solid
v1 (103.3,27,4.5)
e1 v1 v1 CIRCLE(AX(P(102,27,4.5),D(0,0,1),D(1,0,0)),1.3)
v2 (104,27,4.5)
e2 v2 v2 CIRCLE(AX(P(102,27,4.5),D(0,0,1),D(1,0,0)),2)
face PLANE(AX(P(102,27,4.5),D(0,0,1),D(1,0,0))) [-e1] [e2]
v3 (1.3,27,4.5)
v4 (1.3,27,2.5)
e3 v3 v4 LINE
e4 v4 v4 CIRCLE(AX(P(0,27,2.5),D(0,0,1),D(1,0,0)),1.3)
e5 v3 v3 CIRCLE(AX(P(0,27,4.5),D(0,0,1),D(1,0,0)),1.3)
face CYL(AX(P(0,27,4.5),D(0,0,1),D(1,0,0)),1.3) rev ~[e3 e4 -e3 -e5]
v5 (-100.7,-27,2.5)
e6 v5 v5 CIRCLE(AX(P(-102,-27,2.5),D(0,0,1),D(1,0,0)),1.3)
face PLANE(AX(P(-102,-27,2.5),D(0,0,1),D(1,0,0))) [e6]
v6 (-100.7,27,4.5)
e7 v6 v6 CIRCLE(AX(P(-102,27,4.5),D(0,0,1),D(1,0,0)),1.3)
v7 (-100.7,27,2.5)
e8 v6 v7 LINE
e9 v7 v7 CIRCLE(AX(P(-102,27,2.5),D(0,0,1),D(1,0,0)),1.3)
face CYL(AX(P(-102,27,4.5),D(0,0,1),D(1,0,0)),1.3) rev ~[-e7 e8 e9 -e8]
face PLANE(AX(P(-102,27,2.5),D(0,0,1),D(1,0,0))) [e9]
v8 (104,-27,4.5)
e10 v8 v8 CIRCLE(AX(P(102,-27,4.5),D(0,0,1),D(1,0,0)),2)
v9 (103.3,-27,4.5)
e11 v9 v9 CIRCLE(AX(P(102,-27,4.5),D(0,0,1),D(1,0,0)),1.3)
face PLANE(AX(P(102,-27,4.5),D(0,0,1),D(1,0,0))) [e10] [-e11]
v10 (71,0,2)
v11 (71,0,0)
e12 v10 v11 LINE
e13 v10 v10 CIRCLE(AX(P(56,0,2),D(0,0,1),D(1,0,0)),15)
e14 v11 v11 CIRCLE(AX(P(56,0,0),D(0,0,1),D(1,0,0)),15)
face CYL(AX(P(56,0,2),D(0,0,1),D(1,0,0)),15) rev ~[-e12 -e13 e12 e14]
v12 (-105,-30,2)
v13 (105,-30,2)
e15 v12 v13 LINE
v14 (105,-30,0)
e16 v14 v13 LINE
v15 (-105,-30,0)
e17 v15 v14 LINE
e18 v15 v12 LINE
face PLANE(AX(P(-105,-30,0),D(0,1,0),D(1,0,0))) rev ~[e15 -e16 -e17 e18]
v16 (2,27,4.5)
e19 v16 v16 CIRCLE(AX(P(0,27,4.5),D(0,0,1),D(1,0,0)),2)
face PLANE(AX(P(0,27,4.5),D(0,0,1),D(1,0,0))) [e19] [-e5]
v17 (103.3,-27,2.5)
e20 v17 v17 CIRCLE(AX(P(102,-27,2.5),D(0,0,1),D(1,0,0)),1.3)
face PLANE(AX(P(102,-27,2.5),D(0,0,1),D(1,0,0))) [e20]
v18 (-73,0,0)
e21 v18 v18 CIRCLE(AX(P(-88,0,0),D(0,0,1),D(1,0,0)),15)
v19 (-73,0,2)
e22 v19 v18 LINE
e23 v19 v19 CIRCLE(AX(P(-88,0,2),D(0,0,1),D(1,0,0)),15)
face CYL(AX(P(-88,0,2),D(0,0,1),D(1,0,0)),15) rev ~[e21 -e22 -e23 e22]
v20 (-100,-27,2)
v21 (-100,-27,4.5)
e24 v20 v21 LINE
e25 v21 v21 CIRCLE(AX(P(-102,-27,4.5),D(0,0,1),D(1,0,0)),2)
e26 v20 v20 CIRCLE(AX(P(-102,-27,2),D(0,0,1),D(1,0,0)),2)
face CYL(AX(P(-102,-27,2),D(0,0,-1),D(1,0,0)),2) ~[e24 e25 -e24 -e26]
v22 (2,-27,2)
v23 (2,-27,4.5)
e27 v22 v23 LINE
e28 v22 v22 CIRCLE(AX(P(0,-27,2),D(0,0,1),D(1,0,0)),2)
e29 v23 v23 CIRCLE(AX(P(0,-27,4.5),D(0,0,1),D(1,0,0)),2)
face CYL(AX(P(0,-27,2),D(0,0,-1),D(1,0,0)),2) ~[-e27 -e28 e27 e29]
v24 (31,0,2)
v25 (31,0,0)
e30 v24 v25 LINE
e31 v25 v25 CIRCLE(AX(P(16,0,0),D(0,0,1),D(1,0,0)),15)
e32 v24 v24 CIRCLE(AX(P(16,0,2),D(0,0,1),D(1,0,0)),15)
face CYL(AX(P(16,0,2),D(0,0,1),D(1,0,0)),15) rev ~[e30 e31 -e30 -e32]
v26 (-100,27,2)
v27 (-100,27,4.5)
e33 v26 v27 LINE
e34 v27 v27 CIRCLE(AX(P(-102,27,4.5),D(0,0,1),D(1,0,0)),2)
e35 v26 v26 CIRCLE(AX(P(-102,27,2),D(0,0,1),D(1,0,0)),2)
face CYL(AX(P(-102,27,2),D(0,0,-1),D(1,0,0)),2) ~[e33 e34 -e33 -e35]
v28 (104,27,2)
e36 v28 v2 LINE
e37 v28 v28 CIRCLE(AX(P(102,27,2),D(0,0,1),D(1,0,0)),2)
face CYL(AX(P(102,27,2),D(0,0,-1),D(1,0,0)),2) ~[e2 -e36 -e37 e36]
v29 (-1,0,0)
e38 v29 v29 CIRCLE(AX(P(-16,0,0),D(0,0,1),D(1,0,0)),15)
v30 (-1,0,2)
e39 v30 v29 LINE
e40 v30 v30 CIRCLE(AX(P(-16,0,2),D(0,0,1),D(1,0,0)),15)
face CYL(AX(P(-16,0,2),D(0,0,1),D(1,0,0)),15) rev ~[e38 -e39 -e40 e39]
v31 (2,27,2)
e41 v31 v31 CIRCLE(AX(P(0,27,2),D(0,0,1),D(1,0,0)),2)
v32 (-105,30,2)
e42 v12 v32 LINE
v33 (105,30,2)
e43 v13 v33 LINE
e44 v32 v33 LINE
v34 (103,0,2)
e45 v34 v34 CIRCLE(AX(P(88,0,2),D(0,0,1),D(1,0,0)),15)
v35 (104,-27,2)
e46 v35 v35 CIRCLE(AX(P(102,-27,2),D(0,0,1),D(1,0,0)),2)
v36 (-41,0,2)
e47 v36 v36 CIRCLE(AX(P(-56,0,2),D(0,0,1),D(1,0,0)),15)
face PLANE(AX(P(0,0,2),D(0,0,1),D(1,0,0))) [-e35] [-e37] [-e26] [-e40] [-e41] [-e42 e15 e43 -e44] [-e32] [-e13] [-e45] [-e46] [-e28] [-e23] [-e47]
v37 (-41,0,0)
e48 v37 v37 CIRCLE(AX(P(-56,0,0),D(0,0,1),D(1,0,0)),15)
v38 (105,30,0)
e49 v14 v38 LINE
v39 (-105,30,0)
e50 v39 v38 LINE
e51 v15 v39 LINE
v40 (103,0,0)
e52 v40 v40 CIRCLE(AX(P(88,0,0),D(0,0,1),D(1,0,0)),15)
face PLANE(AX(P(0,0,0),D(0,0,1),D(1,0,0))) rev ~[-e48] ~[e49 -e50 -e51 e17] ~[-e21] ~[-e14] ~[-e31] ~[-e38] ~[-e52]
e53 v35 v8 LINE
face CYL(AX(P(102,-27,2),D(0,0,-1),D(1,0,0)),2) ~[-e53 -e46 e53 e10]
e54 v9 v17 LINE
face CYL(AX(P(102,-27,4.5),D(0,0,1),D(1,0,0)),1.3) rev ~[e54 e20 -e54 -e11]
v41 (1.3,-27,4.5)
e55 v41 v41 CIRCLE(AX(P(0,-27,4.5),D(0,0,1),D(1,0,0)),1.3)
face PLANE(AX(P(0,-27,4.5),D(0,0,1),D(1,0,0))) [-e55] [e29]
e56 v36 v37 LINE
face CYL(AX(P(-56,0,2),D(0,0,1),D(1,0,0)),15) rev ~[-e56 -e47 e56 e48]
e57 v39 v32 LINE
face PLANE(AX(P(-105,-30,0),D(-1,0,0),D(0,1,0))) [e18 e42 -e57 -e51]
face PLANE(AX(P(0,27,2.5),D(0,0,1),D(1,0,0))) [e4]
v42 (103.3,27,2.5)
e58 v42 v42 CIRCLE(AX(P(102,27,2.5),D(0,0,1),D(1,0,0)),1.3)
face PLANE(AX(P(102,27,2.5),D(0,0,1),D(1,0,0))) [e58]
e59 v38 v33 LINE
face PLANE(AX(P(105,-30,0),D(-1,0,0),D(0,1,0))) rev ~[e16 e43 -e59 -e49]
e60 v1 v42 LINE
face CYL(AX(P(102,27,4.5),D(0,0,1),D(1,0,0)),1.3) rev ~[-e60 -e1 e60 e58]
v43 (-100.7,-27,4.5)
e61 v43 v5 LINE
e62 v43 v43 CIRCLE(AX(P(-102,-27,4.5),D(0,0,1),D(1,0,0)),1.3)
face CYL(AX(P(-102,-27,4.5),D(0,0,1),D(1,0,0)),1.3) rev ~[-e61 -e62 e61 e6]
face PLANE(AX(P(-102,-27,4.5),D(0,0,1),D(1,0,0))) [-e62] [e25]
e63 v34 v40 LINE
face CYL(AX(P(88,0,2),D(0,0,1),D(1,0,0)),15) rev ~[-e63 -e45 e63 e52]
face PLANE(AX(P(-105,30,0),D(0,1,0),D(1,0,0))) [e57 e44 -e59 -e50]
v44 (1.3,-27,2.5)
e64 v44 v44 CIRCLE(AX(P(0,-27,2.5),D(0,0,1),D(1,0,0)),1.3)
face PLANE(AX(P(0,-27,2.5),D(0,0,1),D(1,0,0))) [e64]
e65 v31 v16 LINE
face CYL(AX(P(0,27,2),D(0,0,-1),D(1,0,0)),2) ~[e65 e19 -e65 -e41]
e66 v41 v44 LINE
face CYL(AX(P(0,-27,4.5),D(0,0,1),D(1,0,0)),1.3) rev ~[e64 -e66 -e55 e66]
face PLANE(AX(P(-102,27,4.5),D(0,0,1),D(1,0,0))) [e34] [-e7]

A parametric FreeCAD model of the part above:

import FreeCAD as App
import Part
import Sketcher
from FreeCAD import Vector
Q = App.Units.Quantity


def add_polygon(sketch, points):
    """Adds a closed chain of lines whose ends are joined by coincident constraints."""
    first, n = sketch.GeometryCount, len(points)
    for a, b in zip(points, points[1:] + points[:1]):
        sketch.addGeometry(Part.LineSegment(App.Vector(*a, 0), App.Vector(*b, 0)), False)
    for i in range(n):
        sketch.addConstraint(Sketcher.Constraint("Coincident", first + i, 2, first + (i + 1) % n, 1))

doc = App.newDocument("Part")
params = doc.addObject("Spreadsheet::Sheet", "Params")
for row, (alias, value) in enumerate([
    ("sketch1_width", "210 mm"),
    ("sketch1_height", "60 mm"),
    ("pad1_length", "2 mm"),
    ("sketch2_diameter", "30 mm"),
    ("pocket1_length", "2 mm"),
    ("sketch3_diameter", "4 mm"),
    ("pad2_length", "2.5 mm"),
    ("sketch4_diameter", "2.6 mm"),
    ("pocket2_length", "2 mm"),
    ("sketch5_diameter", "2.6 mm"),
    ("pocket3_length", "2 mm"),
    ("sketch6_diameter", "2.6 mm"),
    ("pocket4_length", "2 mm"),
    ("sketch7_diameter", "2.6 mm"),
    ("pocket5_length", "2 mm"),
    ("sketch8_diameter", "2.6 mm"),
    ("pocket6_length", "2 mm"),
    ("sketch9_diameter", "2.6 mm"),
    ("pocket7_length", "2 mm"),
], start=1):
    params.set(f"A{row}", alias)
    params.set(f"B{row}", "=" + value)
    params.setAlias(f"B{row}", alias)

body = doc.addObject("PartDesign::Body", "Body")

# Sketch on XY plane
sketch1 = body.newObject("Sketcher::SketchObject", "Sketch")
sketch1.AttachmentSupport = (doc.getObject("XY_Plane"), [""])
sketch1.MapMode = "FlatFace"
add_polygon(sketch1, [(-105, 30), (-105, -30), (105, -30), (105, 30)])  # lines 0-3
sketch1.addConstraint(Sketcher.Constraint("Vertical", 0))
sketch1.addConstraint(Sketcher.Constraint("Horizontal", 1))
sketch1.addConstraint(Sketcher.Constraint("Vertical", 2))
sketch1.addConstraint(Sketcher.Constraint("Horizontal", 3))
sketch1.addConstraint(Sketcher.Constraint("Symmetric", 0, 2, 2, 2, -1, 1))
sketch1.addConstraint(Sketcher.Constraint("DistanceX", 1, 1, 1, 2, Q("210 mm")))
sketch1.addConstraint(Sketcher.Constraint("DistanceY", 0, 2, 0, 1, Q("60 mm")))
sketch1.setExpression("Constraints[9]", "Params.sketch1_width")
sketch1.setExpression("Constraints[10]", "Params.sketch1_height")
pad1 = body.newObject("PartDesign::Pad", "Pad")
pad1.Profile = sketch1
pad1.setExpression("Length", "Params.pad1_length")

# Sketch on XY plane
sketch2 = body.newObject("Sketcher::SketchObject", "Sketch001")
sketch2.AttachmentSupport = (doc.getObject("XY_Plane"), [""])
sketch2.MapMode = "FlatFace"
sketch2.AttachmentOffset = App.Placement(Vector(0, 0, 2), App.Rotation())
sketch2.addGeometry(Part.Circle(Vector(-88, 0, 0), Vector(0, 0, 1), 15), False)
sketch2.addGeometry(Part.Circle(Vector(-56, 0, 0), Vector(0, 0, 1), 15), False)
sketch2.addGeometry(Part.Circle(Vector(-16, 0, 0), Vector(0, 0, 1), 15), False)
sketch2.addGeometry(Part.Circle(Vector(16, 0, 0), Vector(0, 0, 1), 15), False)
sketch2.addGeometry(Part.Circle(Vector(56, 0, 0), Vector(0, 0, 1), 15), False)
sketch2.addGeometry(Part.Circle(Vector(88, 0, 0), Vector(0, 0, 1), 15), False)
sketch2.addConstraint(Sketcher.Constraint("Equal", 0, 1))
sketch2.addConstraint(Sketcher.Constraint("Equal", 1, 2))
sketch2.addConstraint(Sketcher.Constraint("Equal", 2, 3))
sketch2.addConstraint(Sketcher.Constraint("Equal", 3, 4))
sketch2.addConstraint(Sketcher.Constraint("Equal", 4, 5))
sketch2.addConstraint(Sketcher.Constraint("Symmetric", 2, 3, 3, 3, -1, 1))
sketch2.addConstraint(Sketcher.Constraint("Symmetric", 1, 3, 4, 3, -1, 1))
sketch2.addConstraint(Sketcher.Constraint("Symmetric", 0, 3, 5, 3, -1, 1))
sketch2.addConstraint(Sketcher.Constraint("PointOnObject", 0, 3, -1))
sketch2.addConstraint(Sketcher.Constraint("PointOnObject", 1, 3, -1))
sketch2.addConstraint(Sketcher.Constraint("PointOnObject", 2, 3, -1))
sketch2.addConstraint(Sketcher.Constraint("Diameter", 0, Q("30 mm")))
sketch2.addConstraint(Sketcher.Constraint("DistanceX", 0, 3, -1, 1, Q("88 mm")))
sketch2.addConstraint(Sketcher.Constraint("DistanceX", 1, 3, -1, 1, Q("56 mm")))
sketch2.addConstraint(Sketcher.Constraint("DistanceX", 2, 3, -1, 1, Q("16 mm")))
sketch2.setExpression("Constraints[11]", "Params.sketch2_diameter")
pocket1 = body.newObject("PartDesign::Pocket", "Pocket")
pocket1.Profile = sketch2
pocket1.setExpression("Length", "Params.pocket1_length")

# Sketch on XY plane
sketch3 = body.newObject("Sketcher::SketchObject", "Sketch002")
sketch3.AttachmentSupport = (doc.getObject("XY_Plane"), [""])
sketch3.MapMode = "FlatFace"
sketch3.AttachmentOffset = App.Placement(Vector(0, 0, 2), App.Rotation())
sketch3.addGeometry(Part.Circle(Vector(-102, -27, 0), Vector(0, 0, 1), 2), False)
sketch3.addGeometry(Part.Circle(Vector(-102, 27, 0), Vector(0, 0, 1), 2), False)
sketch3.addGeometry(Part.Circle(Vector(102, -27, 0), Vector(0, 0, 1), 2), False)
sketch3.addGeometry(Part.Circle(Vector(102, 27, 0), Vector(0, 0, 1), 2), False)
sketch3.addGeometry(Part.Circle(Vector(0, 27, 0), Vector(0, 0, 1), 2), False)
sketch3.addGeometry(Part.Circle(Vector(0, -27, 0), Vector(0, 0, 1), 2), False)
sketch3.addConstraint(Sketcher.Constraint("Equal", 0, 1))
sketch3.addConstraint(Sketcher.Constraint("Equal", 1, 2))
sketch3.addConstraint(Sketcher.Constraint("Equal", 2, 3))
sketch3.addConstraint(Sketcher.Constraint("Equal", 3, 4))
sketch3.addConstraint(Sketcher.Constraint("Equal", 4, 5))
sketch3.addConstraint(Sketcher.Constraint("Symmetric", 1, 3, 2, 3, -1, 1))
sketch3.addConstraint(Sketcher.Constraint("Symmetric", 0, 3, 3, 3, -1, 1))
sketch3.addConstraint(Sketcher.Constraint("Symmetric", 4, 3, 5, 3, -1, 1))
sketch3.addConstraint(Sketcher.Constraint("Symmetric", 0, 3, 2, 3, -2))
sketch3.addConstraint(Sketcher.Constraint("PointOnObject", 4, 3, -2))
sketch3.addConstraint(Sketcher.Constraint("Horizontal", 3, 3, 4, 3))
sketch3.addConstraint(Sketcher.Constraint("Diameter", 0, Q("4 mm")))
sketch3.addConstraint(Sketcher.Constraint("DistanceX", 0, 3, -1, 1, Q("102 mm")))
sketch3.addConstraint(Sketcher.Constraint("DistanceY", 0, 3, -1, 1, Q("27 mm")))
sketch3.setExpression("Constraints[11]", "Params.sketch3_diameter")
pad2 = body.newObject("PartDesign::Pad", "Pad001")
pad2.Profile = sketch3
pad2.setExpression("Length", "Params.pad2_length")

# Sketch on XY plane
sketch4 = body.newObject("Sketcher::SketchObject", "Sketch003")
sketch4.AttachmentSupport = (doc.getObject("XY_Plane"), [""])
sketch4.MapMode = "FlatFace"
sketch4.AttachmentOffset = App.Placement(Vector(0, 0, 4.5), App.Rotation())
sketch4.addGeometry(Part.Circle(Vector(0, -27, 0), Vector(0, 0, 1), 1.3), False)
sketch4.addConstraint(Sketcher.Constraint("PointOnObject", 0, 3, -2))
sketch4.addConstraint(Sketcher.Constraint("Diameter", 0, Q("2.6 mm")))
sketch4.addConstraint(Sketcher.Constraint("DistanceY", 0, 3, -1, 1, Q("27 mm")))
sketch4.setExpression("Constraints[1]", "Params.sketch4_diameter")
pocket2 = body.newObject("PartDesign::Pocket", "Pocket001")
pocket2.Profile = sketch4
pocket2.setExpression("Length", "Params.pocket2_length")

# Sketch on XY plane
sketch5 = body.newObject("Sketcher::SketchObject", "Sketch004")
sketch5.AttachmentSupport = (doc.getObject("XY_Plane"), [""])
sketch5.MapMode = "FlatFace"
sketch5.AttachmentOffset = App.Placement(Vector(0, 0, 4.5), App.Rotation())
sketch5.addGeometry(Part.Circle(Vector(-102, -27, 0), Vector(0, 0, 1), 1.3), False)
sketch5.addConstraint(Sketcher.Constraint("Diameter", 0, Q("2.6 mm")))
sketch5.addConstraint(Sketcher.Constraint("DistanceX", 0, 3, -1, 1, Q("102 mm")))
sketch5.addConstraint(Sketcher.Constraint("DistanceY", 0, 3, -1, 1, Q("27 mm")))
sketch5.setExpression("Constraints[0]", "Params.sketch5_diameter")
pocket3 = body.newObject("PartDesign::Pocket", "Pocket002")
pocket3.Profile = sketch5
pocket3.setExpression("Length", "Params.pocket3_length")

# Sketch on XY plane
sketch6 = body.newObject("Sketcher::SketchObject", "Sketch005")
sketch6.AttachmentSupport = (doc.getObject("XY_Plane"), [""])
sketch6.MapMode = "FlatFace"
sketch6.AttachmentOffset = App.Placement(Vector(0, 0, 4.5), App.Rotation())
sketch6.addGeometry(Part.Circle(Vector(-102, 27, 0), Vector(0, 0, 1), 1.3), False)
sketch6.addConstraint(Sketcher.Constraint("Diameter", 0, Q("2.6 mm")))
sketch6.addConstraint(Sketcher.Constraint("DistanceX", 0, 3, -1, 1, Q("102 mm")))
sketch6.addConstraint(Sketcher.Constraint("DistanceY", -1, 1, 0, 3, Q("27 mm")))
sketch6.setExpression("Constraints[0]", "Params.sketch6_diameter")
pocket4 = body.newObject("PartDesign::Pocket", "Pocket003")
pocket4.Profile = sketch6
pocket4.setExpression("Length", "Params.pocket4_length")

# Sketch on XY plane
sketch7 = body.newObject("Sketcher::SketchObject", "Sketch006")
sketch7.AttachmentSupport = (doc.getObject("XY_Plane"), [""])
sketch7.MapMode = "FlatFace"
sketch7.AttachmentOffset = App.Placement(Vector(0, 0, 4.5), App.Rotation())
sketch7.addGeometry(Part.Circle(Vector(0, 27, 0), Vector(0, 0, 1), 1.3), False)
sketch7.addConstraint(Sketcher.Constraint("PointOnObject", 0, 3, -2))
sketch7.addConstraint(Sketcher.Constraint("Diameter", 0, Q("2.6 mm")))
sketch7.addConstraint(Sketcher.Constraint("DistanceY", -1, 1, 0, 3, Q("27 mm")))
sketch7.setExpression("Constraints[1]", "Params.sketch7_diameter")
pocket5 = body.newObject("PartDesign::Pocket", "Pocket004")
pocket5.Profile = sketch7
pocket5.setExpression("Length", "Params.pocket5_length")

# Sketch on XY plane
sketch8 = body.newObject("Sketcher::SketchObject", "Sketch007")
sketch8.AttachmentSupport = (doc.getObject("XY_Plane"), [""])
sketch8.MapMode = "FlatFace"
sketch8.AttachmentOffset = App.Placement(Vector(0, 0, 4.5), App.Rotation())
sketch8.addGeometry(Part.Circle(Vector(102, 27, 0), Vector(0, 0, 1), 1.3), False)
sketch8.addConstraint(Sketcher.Constraint("Diameter", 0, Q("2.6 mm")))
sketch8.addConstraint(Sketcher.Constraint("DistanceX", -1, 1, 0, 3, Q("102 mm")))
sketch8.addConstraint(Sketcher.Constraint("DistanceY", -1, 1, 0, 3, Q("27 mm")))
sketch8.setExpression("Constraints[0]", "Params.sketch8_diameter")
pocket6 = body.newObject("PartDesign::Pocket", "Pocket005")
pocket6.Profile = sketch8
pocket6.setExpression("Length", "Params.pocket6_length")

# Sketch on XY plane
sketch9 = body.newObject("Sketcher::SketchObject", "Sketch008")
sketch9.AttachmentSupport = (doc.getObject("XY_Plane"), [""])
sketch9.MapMode = "FlatFace"
sketch9.AttachmentOffset = App.Placement(Vector(0, 0, 4.5), App.Rotation())
sketch9.addGeometry(Part.Circle(Vector(102, -27, 0), Vector(0, 0, 1), 1.3), False)
sketch9.addConstraint(Sketcher.Constraint("Diameter", 0, Q("2.6 mm")))
sketch9.addConstraint(Sketcher.Constraint("DistanceX", -1, 1, 0, 3, Q("102 mm")))
sketch9.addConstraint(Sketcher.Constraint("DistanceY", 0, 3, -1, 1, Q("27 mm")))
sketch9.setExpression("Constraints[0]", "Params.sketch9_diameter")
pocket7 = body.newObject("PartDesign::Pocket", "Pocket006")
pocket7.Profile = sketch9
pocket7.setExpression("Length", "Params.pocket7_length")

doc.recompute()
